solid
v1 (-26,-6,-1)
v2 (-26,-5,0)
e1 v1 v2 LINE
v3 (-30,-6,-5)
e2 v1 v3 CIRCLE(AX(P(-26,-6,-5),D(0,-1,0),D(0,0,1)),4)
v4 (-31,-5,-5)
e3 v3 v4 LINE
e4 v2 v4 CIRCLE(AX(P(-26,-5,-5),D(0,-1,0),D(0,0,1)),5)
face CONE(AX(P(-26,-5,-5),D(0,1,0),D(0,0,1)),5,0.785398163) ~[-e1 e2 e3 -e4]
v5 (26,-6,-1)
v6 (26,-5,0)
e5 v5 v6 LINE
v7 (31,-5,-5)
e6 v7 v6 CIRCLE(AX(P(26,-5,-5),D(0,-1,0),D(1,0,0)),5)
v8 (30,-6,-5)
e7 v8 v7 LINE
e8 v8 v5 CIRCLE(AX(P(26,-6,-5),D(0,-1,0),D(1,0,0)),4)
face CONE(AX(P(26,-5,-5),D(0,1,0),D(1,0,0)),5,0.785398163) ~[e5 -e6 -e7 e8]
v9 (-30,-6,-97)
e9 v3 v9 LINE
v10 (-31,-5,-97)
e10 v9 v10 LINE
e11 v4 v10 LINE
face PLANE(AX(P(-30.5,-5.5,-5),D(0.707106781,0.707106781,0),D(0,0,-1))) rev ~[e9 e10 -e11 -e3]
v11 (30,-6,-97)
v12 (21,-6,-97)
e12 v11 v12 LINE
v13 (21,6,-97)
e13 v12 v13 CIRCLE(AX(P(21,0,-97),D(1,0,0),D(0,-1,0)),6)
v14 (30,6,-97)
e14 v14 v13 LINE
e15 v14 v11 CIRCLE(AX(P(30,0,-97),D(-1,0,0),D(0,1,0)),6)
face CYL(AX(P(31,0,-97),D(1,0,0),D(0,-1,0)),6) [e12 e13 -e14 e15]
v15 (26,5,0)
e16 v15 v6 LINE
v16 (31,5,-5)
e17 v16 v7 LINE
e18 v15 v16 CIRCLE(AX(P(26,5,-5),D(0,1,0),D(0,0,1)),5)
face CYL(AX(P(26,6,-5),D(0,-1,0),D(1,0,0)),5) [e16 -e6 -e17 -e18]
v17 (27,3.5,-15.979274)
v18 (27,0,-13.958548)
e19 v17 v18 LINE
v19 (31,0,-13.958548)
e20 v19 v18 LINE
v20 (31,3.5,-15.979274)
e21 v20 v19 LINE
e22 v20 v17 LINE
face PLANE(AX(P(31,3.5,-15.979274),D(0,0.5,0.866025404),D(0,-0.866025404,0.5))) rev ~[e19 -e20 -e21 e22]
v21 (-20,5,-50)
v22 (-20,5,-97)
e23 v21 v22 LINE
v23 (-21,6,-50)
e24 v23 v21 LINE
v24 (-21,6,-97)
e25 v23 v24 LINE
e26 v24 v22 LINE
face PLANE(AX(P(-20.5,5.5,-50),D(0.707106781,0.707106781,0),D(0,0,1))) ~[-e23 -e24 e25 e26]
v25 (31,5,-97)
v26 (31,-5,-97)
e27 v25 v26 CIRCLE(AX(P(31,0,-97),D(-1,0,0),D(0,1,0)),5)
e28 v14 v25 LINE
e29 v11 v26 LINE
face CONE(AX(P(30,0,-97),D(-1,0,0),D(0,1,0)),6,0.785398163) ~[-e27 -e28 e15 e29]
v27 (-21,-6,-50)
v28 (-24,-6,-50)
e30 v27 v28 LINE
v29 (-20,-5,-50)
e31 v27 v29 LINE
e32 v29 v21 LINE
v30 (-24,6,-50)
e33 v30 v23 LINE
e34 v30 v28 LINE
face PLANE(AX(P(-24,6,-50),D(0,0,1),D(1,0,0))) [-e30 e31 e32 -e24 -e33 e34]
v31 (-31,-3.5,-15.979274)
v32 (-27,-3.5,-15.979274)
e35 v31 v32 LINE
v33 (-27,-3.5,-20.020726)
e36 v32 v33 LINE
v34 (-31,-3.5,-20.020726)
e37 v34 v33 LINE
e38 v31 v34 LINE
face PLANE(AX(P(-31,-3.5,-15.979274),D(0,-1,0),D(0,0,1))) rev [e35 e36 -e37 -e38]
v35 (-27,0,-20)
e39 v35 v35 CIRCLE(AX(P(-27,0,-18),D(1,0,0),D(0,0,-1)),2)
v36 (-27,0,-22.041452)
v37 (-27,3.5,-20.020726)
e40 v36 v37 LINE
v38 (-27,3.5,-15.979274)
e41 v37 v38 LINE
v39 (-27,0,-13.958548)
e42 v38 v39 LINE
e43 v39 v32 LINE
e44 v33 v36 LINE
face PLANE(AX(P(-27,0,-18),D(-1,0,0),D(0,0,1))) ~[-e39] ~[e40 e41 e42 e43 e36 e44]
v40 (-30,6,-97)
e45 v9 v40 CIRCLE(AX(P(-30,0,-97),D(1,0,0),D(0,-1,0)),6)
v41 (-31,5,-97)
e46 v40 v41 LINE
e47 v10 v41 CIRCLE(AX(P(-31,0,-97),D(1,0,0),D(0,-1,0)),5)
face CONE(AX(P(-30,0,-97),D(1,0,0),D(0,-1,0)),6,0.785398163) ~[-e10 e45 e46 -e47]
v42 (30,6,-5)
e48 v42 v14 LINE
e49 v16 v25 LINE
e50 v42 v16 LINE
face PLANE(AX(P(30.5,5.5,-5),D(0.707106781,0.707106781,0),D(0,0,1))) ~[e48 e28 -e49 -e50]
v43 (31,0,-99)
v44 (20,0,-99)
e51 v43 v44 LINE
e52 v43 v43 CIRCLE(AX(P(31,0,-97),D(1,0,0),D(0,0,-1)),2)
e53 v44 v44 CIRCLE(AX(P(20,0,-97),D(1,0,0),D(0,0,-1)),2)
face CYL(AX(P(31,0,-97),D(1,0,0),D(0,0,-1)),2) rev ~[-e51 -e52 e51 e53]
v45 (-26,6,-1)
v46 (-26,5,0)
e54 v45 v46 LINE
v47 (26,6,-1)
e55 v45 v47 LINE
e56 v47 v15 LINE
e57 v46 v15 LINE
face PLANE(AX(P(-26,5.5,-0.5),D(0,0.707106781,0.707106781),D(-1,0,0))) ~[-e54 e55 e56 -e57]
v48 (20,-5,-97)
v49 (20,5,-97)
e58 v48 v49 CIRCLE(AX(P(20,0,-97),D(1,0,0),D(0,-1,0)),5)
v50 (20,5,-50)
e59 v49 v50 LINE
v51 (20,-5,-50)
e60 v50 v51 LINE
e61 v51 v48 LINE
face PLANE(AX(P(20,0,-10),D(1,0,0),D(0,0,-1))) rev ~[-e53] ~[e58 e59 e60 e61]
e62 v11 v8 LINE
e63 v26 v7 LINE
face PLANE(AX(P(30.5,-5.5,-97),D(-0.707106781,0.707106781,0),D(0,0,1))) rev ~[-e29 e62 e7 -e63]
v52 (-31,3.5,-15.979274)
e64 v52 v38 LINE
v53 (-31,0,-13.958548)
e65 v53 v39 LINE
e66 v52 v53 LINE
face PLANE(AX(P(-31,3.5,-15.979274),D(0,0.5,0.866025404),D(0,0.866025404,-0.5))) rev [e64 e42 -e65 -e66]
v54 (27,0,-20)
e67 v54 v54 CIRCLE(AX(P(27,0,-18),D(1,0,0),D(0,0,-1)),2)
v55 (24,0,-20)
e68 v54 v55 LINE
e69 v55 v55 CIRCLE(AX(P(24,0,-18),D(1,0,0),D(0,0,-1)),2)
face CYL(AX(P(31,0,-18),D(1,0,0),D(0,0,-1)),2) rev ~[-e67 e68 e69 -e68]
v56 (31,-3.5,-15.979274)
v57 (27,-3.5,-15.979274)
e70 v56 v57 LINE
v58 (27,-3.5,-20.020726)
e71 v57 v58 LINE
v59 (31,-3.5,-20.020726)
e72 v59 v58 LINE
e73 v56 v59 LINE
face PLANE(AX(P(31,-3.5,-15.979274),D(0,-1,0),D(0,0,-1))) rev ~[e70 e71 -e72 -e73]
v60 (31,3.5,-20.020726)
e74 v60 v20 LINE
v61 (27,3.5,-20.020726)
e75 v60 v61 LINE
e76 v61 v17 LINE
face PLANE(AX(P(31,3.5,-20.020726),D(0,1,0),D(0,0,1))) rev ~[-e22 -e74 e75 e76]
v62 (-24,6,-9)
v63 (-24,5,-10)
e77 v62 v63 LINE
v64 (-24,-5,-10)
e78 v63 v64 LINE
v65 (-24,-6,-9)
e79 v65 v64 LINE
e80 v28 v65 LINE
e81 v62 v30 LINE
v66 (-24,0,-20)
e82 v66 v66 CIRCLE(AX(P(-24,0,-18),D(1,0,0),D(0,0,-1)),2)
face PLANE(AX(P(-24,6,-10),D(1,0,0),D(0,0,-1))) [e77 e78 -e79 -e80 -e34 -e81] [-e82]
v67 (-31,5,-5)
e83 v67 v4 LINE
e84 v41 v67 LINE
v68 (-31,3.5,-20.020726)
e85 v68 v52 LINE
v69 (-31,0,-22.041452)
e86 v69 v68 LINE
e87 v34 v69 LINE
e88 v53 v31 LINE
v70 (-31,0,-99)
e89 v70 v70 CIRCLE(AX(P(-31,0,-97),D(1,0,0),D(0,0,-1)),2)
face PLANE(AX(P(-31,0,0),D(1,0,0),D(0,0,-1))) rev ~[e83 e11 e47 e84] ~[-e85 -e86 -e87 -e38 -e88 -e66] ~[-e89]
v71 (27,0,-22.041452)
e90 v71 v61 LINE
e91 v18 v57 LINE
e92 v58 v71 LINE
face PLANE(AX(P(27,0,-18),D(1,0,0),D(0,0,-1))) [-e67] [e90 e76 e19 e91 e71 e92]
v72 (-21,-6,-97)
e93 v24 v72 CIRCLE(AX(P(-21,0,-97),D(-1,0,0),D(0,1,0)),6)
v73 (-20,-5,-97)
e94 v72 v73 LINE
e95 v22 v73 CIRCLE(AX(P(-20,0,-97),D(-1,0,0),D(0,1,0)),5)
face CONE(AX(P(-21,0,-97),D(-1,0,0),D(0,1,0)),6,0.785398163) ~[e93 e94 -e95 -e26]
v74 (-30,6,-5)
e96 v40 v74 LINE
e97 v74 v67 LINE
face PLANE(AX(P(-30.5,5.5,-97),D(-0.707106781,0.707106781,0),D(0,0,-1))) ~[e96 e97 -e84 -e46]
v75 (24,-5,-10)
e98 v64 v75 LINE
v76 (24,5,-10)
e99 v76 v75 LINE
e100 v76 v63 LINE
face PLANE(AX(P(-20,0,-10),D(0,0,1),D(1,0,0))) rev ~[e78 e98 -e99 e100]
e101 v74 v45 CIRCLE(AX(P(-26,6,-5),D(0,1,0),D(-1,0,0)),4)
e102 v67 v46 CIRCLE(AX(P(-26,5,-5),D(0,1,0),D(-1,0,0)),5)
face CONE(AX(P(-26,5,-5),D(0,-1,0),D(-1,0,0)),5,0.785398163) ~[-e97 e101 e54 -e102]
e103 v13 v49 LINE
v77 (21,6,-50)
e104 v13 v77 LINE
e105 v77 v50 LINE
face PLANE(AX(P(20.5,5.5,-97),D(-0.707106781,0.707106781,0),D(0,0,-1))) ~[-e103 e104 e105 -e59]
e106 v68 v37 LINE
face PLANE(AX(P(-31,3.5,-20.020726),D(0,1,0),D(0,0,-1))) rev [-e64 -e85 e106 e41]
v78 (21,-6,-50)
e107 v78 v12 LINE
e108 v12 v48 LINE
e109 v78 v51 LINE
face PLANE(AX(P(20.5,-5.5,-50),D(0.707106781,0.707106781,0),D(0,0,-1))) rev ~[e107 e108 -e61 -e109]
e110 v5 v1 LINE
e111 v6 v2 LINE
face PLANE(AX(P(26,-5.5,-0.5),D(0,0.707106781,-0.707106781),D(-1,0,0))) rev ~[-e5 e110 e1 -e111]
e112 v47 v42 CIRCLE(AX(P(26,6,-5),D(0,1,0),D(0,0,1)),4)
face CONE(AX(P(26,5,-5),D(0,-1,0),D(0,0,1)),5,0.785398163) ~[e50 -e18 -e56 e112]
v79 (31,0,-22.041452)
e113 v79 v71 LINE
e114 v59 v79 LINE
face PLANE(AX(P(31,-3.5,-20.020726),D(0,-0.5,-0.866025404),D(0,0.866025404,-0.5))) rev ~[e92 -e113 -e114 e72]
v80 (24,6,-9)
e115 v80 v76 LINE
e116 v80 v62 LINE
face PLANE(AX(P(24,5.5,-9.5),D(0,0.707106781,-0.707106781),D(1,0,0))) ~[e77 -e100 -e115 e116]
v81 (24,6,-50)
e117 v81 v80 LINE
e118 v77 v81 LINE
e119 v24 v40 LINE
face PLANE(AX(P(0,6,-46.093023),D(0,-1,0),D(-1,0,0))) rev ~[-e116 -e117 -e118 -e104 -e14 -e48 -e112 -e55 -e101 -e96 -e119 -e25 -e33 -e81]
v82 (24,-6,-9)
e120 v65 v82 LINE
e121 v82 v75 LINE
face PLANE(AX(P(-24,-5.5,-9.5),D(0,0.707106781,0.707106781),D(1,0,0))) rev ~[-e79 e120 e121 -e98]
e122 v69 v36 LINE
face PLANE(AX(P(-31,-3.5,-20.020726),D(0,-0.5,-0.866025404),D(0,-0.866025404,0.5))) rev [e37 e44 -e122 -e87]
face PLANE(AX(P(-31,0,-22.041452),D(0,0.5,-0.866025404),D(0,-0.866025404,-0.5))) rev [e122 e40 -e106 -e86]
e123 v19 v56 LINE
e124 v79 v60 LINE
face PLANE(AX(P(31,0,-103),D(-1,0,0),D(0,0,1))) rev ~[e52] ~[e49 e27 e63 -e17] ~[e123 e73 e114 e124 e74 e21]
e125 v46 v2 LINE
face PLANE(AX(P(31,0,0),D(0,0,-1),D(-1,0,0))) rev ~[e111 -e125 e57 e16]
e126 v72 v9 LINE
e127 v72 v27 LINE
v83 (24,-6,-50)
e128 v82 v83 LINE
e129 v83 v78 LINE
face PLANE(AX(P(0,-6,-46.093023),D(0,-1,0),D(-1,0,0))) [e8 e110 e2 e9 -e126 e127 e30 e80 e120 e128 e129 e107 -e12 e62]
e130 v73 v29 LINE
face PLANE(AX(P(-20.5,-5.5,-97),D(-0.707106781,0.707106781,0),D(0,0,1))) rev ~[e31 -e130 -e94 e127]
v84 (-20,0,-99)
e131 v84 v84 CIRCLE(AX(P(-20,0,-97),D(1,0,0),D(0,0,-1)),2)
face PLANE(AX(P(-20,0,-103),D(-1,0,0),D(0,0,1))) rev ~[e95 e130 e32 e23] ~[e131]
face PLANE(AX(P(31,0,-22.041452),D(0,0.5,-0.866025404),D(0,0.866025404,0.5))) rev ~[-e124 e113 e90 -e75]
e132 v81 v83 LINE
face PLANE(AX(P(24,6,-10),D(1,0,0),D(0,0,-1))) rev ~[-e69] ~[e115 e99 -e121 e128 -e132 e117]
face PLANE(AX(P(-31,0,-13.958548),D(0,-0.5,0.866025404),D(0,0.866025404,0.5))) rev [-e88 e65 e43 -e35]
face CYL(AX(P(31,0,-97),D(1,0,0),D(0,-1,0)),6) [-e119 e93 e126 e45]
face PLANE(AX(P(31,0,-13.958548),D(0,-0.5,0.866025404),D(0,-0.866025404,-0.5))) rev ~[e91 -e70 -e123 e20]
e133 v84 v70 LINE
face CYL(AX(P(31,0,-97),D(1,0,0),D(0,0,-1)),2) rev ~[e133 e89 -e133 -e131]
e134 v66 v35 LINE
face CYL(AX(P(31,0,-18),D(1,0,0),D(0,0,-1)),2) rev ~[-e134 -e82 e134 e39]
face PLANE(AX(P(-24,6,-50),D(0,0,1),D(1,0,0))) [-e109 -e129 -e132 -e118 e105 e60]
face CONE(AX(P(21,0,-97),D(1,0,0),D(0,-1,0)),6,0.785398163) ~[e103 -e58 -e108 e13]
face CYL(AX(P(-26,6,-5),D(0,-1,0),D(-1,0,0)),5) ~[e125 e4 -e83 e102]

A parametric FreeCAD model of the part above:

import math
import FreeCAD as App
import Part
import Sketcher
Q = App.Units.Quantity


def edges_at(feature, points):
    """Names of the edges that pass closest to the given points."""
    edges = feature.Shape.Edges
    near = lambda p: min(range(len(edges)), key=lambda i: edges[i].distToShape(Part.Vertex(*p))[0])
    return sorted({f"Edge{near(p) + 1}" for p in points})


def add_polygon(sketch, points):
    """Adds a closed chain of lines whose ends are joined by coincident constraints."""
    first, n = sketch.GeometryCount, len(points)
    for a, b in zip(points, points[1:] + points[:1]):
        sketch.addGeometry(Part.LineSegment(App.Vector(*a, 0), App.Vector(*b, 0)), False)
    for i in range(n):
        sketch.addConstraint(Sketcher.Constraint("Coincident", first + i, 2, first + (i + 1) % n, 1))

doc = App.newDocument("Part")
body = doc.addObject("PartDesign::Body", "Body")

# Sketch on XZ plane
sketch1 = doc.addObject("Sketcher::SketchObject", "Sketch")
body.addObject(sketch1)
sketch1.AttachmentSupport = (doc.XZ_Plane, [""])
sketch1.MapMode = "FlatFace"
add_polygon(sketch1, [(31, -103), (20, -103), (20, -10), (-20, -10), (-20, -103), (-31, -103), (-31, 0), (31, 0)])  # lines 0-7
sketch1.addConstraint([
    Sketcher.Constraint("Horizontal", 0),
    Sketcher.Constraint("Vertical", 1),
    Sketcher.Constraint("Horizontal", 2),
    Sketcher.Constraint("Vertical", 3),
    Sketcher.Constraint("Horizontal", 4),
    Sketcher.Constraint("Vertical", 5),
    Sketcher.Constraint("Horizontal", 6),
    Sketcher.Constraint("Vertical", 7),
    Sketcher.Constraint("Symmetric", 5, 2, 6, 2, -1, 1),
    Sketcher.Constraint("Symmetric", 0, 2, 3, 2, -2),
    Sketcher.Constraint("DistanceX", 0, 2, 0, 1, 11.0),
    Sketcher.Constraint("DistanceX", 2, 2, 2, 1, 40.0),
    Sketcher.Constraint("DistanceY", 1, 1, 1, 2, 93.0),
    Sketcher.Constraint("DistanceY", 5, 1, 5, 2, 103.0),
])
pad1 = doc.addObject("PartDesign::Pad", "Pad")
body.addObject(pad1)
pad1.Profile = sketch1
pad1.Length = 12
pad1.Midplane = True

# Sketch on YZ plane
sketch2 = doc.addObject("Sketcher::SketchObject", "Sketch001")
body.addObject(sketch2)
sketch2.AttachmentSupport = (doc.YZ_Plane, [""])
sketch2.MapMode = "FlatFace"
sketch2.AttachmentOffset = App.Placement(App.Vector(0, 0, 31), App.Rotation())
sketch2.addGeometry([
    Part.Circle(App.Vector(0, -97, 0), App.Vector(0, 0, 1), 2),  # 0
    Part.LineSegment(App.Vector(6, -104, 0), App.Vector(6, -97, 0)),  # 1
    Part.ArcOfCircle(Part.Circle(App.Vector(0, -97, 0), App.Vector(0, 0, 1), 6), math.radians(180), math.radians(360)),  # 2
    Part.LineSegment(App.Vector(-6, -97, 0), App.Vector(-6, -104, 0)),  # 3
    Part.LineSegment(App.Vector(-6, -104, 0), App.Vector(6, -104, 0)),  # 4
], False)
sketch2.addConstraint([
    Sketcher.Constraint("Tangent", 1, 2, 2, 2),
    Sketcher.Constraint("Tangent", 2, 1, 3, 1),
    Sketcher.Constraint("Coincident", 3, 2, 4, 1),
    Sketcher.Constraint("Coincident", 4, 2, 1, 1),
    Sketcher.Constraint("Vertical", 1),
    Sketcher.Constraint("Vertical", 3),
    Sketcher.Constraint("Horizontal", 4),
    Sketcher.Constraint("Coincident", 2, 3, 0, 3),
    Sketcher.Constraint("PointOnObject", 0, 3, -2),
    Sketcher.Constraint("Diameter", 0, 4.0),
    Sketcher.Constraint("Radius", 2, 6.0),
    Sketcher.Constraint("DistanceY", 1, 1, 1, 2, 7.0),
    Sketcher.Constraint("DistanceY", 0, 3, -1, 1, 97.0),
])
pocket1 = doc.addObject("PartDesign::Pocket", "Pocket")
body.addObject(pocket1)
pocket1.Profile = sketch2
pocket1.Type = "ThroughAll"

# Sketch on YZ plane
sketch3 = doc.addObject("Sketcher::SketchObject", "Sketch002")
body.addObject(sketch3)
sketch3.AttachmentSupport = (doc.YZ_Plane, [""])
sketch3.MapMode = "FlatFace"
sketch3.AttachmentOffset = App.Placement(App.Vector(0, 0, 31), App.Rotation())
sketch3.addGeometry(Part.Circle(App.Vector(0, -18, 0), App.Vector(0, 0, 1), 2), False)
sketch3.addConstraint([
    Sketcher.Constraint("PointOnObject", 0, 3, -2),
    Sketcher.Constraint("Diameter", 0, 4.0),
    Sketcher.Constraint("DistanceY", 0, 3, -1, 1, 18.0),
])
pocket2 = doc.addObject("PartDesign::Pocket", "Pocket001")
body.addObject(pocket2)
pocket2.Profile = sketch3
pocket2.Type = "ThroughAll"

# Sketch on YZ plane
sketch4 = doc.addObject("Sketcher::SketchObject", "Sketch003")
body.addObject(sketch4)
sketch4.AttachmentSupport = (doc.YZ_Plane, [""])
sketch4.MapMode = "FlatFace"
sketch4.AttachmentOffset = App.Placement(App.Vector(0, 0, 31), App.Rotation())
add_polygon(sketch4, [(0, -22), (3.5, -20), (3.5, -16), (0, -14), (-3.5, -16), (-3.5, -20)])  # lines 0-5
sketch4.addConstraint([
    Sketcher.Constraint("Vertical", 1),
    Sketcher.Constraint("Vertical", 4),
    Sketcher.Constraint("Symmetric", 1, 2, 3, 2, -2),
    Sketcher.Constraint("PointOnObject", 2, 2, -2),
    Sketcher.Constraint("PointOnObject", 5, 2, -2),
    Sketcher.Constraint("Parallel", 0, 3),
    Sketcher.Constraint("Parallel", 2, 5),
    Sketcher.Constraint("Angle", 0, Q("30 deg")),
    Sketcher.Constraint("DistanceX", 3, 2, 1, 2, 7.0),
    Sketcher.Constraint("DistanceY", 1, 1, 1, 2, 4.041452),
    Sketcher.Constraint("DistanceY", 2, 2, -1, 1, 13.958548),
])
pocket3 = doc.addObject("PartDesign::Pocket", "Pocket002")
body.addObject(pocket3)
pocket3.Profile = sketch4
pocket3.Length = 4
doc.recompute()

mirrored = doc.addObject("PartDesign::Mirrored", "Mirrored")
body.addObject(mirrored)
mirrored.Originals = [pocket3]
mirrored.MirrorPlane = (doc.YZ_Plane, [""])
body.Tip = mirrored

# Sketch on XZ plane
sketch5 = doc.addObject("Sketcher::SketchObject", "Sketch004")
body.addObject(sketch5)
sketch5.AttachmentSupport = (doc.XZ_Plane, [""])
sketch5.MapMode = "FlatFace"
sketch5.AttachmentOffset = App.Placement(App.Vector(0, 0, -6), App.Rotation())
add_polygon(sketch5, [(-24, -50), (-24, -10), (24, -10), (24, -50)])  # lines 0-3
sketch5.addConstraint([
    Sketcher.Constraint("Vertical", 0),
    Sketcher.Constraint("Horizontal", 1),
    Sketcher.Constraint("Vertical", 2),
    Sketcher.Constraint("Horizontal", 3),
    Sketcher.Constraint("DistanceX", 1, 1, 1, 2, 48.0),
    Sketcher.Constraint("DistanceY", 0, 1, 0, 2, 40.0),
    Sketcher.Constraint("DistanceX", 0, 2, -1, 1, 24.0),
    Sketcher.Constraint("DistanceY", 0, 2, -1, 1, 10.0),
])
pocket4 = doc.addObject("PartDesign::Pocket", "Pocket003")
body.addObject(pocket4)
pocket4.Profile = sketch5
pocket4.Type = "ThroughAll"
pocket4.Reversed = True
doc.recompute()

fillet = doc.addObject("PartDesign::Fillet", "Fillet")
body.addObject(fillet)
fillet.Base = (pocket4, edges_at(pocket4, [(31, 0, 0), (-31, 0, 0)]))
fillet.Radius = 5
doc.recompute()

chamfer = doc.addObject("PartDesign::Chamfer", "Chamfer")
body.addObject(chamfer)
chamfer.Base = (fillet, edges_at(fillet, [
    (-20, -6, -73.5),
    (-20, 6, -73.5),
    (0, -6, 0),
    (0, 6, 0),
    (31, -6, -51),
    (29.536, -6, -1.464),
    (-29.536, -6, -1.464),
    (31, 6, -51),
    (29.536, 6, -1.464),
    (-29.536, 6, -1.464),
    (0, 6, -10),
    (-31, -6, -51),
    (20, -6, -73.5),
    (-31, 6, -51),
    (20, 6, -73.5),
    (20, 0, -103),
    (-20, 0, -103),
    (-31, 0, -103),
    (31, 0, -103),
    (0, -6, -10),
]))
chamfer.Size = 1

doc.recompute()
